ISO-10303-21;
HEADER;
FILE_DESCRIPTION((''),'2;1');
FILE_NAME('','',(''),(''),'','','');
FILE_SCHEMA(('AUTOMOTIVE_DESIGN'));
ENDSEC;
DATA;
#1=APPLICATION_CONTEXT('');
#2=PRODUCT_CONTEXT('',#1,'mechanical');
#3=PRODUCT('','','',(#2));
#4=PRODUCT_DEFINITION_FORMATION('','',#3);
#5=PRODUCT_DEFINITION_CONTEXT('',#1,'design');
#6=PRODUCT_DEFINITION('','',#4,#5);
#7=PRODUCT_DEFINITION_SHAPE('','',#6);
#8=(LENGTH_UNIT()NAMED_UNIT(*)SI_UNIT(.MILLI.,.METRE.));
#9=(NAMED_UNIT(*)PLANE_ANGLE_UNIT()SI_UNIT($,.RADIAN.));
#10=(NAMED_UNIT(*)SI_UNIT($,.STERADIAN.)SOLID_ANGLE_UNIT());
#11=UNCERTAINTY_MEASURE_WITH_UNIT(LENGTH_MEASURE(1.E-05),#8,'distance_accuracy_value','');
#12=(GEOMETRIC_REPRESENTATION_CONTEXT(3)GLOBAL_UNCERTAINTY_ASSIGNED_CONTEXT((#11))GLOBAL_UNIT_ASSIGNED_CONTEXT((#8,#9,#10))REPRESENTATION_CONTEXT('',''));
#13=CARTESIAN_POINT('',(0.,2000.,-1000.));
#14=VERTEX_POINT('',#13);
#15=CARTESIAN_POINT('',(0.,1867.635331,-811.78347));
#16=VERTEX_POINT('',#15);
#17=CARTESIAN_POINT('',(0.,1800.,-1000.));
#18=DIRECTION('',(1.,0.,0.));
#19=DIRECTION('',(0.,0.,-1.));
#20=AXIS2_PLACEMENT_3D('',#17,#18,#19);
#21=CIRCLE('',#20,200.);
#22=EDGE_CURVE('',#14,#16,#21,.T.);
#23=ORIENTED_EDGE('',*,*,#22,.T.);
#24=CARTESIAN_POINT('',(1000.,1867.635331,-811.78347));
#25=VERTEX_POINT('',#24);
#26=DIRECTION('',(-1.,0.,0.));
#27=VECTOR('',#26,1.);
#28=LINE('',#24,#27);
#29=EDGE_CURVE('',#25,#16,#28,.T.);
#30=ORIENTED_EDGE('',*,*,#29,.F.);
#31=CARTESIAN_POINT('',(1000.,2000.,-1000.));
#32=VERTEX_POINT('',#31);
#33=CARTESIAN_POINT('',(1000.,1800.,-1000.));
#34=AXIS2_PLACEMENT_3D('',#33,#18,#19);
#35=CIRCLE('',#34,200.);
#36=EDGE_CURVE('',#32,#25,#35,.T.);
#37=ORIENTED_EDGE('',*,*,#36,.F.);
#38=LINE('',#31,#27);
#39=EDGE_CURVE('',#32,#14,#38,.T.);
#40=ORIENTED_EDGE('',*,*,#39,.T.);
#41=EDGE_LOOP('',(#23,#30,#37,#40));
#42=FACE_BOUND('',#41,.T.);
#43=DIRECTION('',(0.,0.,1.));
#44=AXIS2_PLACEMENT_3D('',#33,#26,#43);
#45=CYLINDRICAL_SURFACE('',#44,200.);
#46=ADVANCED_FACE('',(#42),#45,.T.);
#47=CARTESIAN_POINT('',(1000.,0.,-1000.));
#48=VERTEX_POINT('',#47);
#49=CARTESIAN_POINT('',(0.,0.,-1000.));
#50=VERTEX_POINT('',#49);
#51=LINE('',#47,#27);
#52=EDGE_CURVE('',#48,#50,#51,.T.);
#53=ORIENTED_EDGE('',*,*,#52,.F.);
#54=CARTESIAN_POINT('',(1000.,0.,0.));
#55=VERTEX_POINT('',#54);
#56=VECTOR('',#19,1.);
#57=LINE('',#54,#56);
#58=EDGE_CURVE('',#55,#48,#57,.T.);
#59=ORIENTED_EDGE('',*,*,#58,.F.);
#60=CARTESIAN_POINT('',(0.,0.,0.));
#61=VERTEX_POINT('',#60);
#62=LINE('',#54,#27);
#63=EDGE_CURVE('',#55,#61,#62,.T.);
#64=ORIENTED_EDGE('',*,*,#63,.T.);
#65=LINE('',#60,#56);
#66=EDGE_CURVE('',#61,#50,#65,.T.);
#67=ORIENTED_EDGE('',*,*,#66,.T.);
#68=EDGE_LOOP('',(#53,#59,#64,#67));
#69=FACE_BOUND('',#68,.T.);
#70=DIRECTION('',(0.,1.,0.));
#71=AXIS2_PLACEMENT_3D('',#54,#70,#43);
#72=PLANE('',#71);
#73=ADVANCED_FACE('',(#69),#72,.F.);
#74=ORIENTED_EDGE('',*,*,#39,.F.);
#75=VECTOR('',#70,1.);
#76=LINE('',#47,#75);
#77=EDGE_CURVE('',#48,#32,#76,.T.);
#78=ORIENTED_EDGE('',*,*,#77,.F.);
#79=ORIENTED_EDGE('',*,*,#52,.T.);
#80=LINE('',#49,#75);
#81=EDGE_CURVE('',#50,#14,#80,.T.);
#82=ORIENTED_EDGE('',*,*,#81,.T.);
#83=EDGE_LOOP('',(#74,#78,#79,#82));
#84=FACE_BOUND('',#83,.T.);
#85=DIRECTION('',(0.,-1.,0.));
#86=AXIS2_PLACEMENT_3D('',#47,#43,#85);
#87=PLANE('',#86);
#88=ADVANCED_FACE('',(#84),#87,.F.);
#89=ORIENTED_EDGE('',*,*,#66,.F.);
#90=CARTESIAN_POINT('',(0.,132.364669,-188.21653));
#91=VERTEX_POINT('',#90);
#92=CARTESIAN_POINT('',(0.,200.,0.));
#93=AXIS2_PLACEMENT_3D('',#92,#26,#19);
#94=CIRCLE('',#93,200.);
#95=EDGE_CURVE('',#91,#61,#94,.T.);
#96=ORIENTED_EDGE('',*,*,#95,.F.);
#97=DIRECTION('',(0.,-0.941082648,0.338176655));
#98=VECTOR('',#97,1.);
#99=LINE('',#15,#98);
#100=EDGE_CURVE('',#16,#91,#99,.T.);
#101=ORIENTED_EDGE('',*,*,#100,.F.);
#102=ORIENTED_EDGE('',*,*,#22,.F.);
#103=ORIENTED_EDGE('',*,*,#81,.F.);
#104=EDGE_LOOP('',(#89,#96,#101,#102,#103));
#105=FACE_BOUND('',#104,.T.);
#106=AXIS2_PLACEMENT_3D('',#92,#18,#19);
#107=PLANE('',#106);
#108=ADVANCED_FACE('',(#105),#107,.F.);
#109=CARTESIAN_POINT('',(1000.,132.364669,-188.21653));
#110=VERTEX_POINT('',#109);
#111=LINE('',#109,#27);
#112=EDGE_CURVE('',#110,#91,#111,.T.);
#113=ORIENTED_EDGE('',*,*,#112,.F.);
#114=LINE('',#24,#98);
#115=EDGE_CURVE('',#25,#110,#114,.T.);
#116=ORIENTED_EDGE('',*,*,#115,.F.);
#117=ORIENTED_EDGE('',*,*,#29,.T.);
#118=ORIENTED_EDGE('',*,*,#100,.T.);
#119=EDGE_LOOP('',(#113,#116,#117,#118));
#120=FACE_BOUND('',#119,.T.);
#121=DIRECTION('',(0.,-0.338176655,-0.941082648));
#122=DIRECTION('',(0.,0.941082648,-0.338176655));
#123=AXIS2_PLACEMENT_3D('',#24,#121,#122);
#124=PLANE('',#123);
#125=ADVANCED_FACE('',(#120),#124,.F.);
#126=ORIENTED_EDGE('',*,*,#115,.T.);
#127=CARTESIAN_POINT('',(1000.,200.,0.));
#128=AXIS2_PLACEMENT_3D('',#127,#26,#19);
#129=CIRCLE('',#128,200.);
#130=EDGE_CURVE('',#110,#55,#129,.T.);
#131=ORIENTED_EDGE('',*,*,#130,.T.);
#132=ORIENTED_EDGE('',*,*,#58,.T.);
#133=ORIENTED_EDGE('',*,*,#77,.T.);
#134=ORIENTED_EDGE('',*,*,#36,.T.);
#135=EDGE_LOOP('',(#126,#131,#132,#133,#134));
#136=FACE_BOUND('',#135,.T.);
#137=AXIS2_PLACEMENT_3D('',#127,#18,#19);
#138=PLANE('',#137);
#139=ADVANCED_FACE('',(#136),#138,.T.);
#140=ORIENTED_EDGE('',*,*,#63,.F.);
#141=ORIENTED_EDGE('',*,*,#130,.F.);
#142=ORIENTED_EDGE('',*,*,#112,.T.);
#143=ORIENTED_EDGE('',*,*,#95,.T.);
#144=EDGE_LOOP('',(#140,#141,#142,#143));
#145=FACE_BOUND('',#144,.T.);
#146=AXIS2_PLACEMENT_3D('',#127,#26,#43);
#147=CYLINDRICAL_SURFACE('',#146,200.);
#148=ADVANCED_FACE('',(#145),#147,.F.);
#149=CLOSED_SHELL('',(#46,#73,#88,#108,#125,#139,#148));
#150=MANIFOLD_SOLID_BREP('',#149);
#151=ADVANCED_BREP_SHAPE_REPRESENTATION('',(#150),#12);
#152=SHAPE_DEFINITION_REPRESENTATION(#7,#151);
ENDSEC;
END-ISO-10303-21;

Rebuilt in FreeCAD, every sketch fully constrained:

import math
import FreeCAD as App
import Part
import Sketcher

V = App.Vector

doc = App.newDocument("Part")
params = doc.addObject("Spreadsheet::Sheet", "Params")
for row, (alias, value) in enumerate([
    ("sketch1_radius", "200 mm"),
    ("sketch1_width", "2000 mm"),
    ("sketch1_height", "1000 mm"),
    ("pad1_length", "1000 mm"),
], start=1):
    params.set(f"A{row}", alias)
    params.set(f"B{row}", "=" + value)
    params.setAlias(f"B{row}", alias)

body = doc.addObject("PartDesign::Body", "Body")

# Sketch on YZ plane
sketch1 = body.newObject("Sketcher::SketchObject", "Sketch")
sketch1.AttachmentSupport = (doc.getObject("YZ_Plane"), [""])
sketch1.MapMode = "FlatFace"
sketch1.addGeometry([
    Part.LineSegment(V(0, 0, 0), V(0, -1000, 0)),  # 0
    Part.LineSegment(V(0, -1000, 0), V(2000, -1000, 0)),  # 1
    Part.ArcOfCircle(Part.Circle(V(1800, -1000, 0), V(0, 0, 1), 200), math.radians(0), math.radians(70)),  # 2
    Part.LineSegment(V(1868, -812, 0), V(132, -188, 0)),  # 3
    Part.ArcOfCircle(Part.Circle(V(200, 0, 0), V(0, 0, 1), 200), math.radians(180), math.radians(250)),  # 4
], False)
sketch1.addConstraint([
    Sketcher.Constraint("Coincident", 0, 2, 1, 1),
    Sketcher.Constraint("Coincident", 1, 2, 2, 1),
    Sketcher.Constraint("Tangent", 2, 2, 3, 1),
    Sketcher.Constraint("Tangent", 3, 2, 4, 2),
    Sketcher.Constraint("Tangent", 4, 1, 0, 1),
    Sketcher.Constraint("Vertical", 0),
    Sketcher.Constraint("Horizontal", 1),
    Sketcher.Constraint("Coincident", 4, 1, -1, 1),
    Sketcher.Constraint("Equal", 2, 4),
    Sketcher.Constraint("Horizontal", 2, 3, 0, 2),
    Sketcher.Constraint("Radius", 2, 200.0),
    Sketcher.Constraint("DistanceX", 1, 1, 1, 2, 2000.0),
    Sketcher.Constraint("DistanceY", 0, 2, 0, 1, 1000.0),
])
sketch1.setExpression("Constraints[10]", "Params.sketch1_radius")
sketch1.setExpression("Constraints[11]", "Params.sketch1_width")
sketch1.setExpression("Constraints[12]", "Params.sketch1_height")
pad1 = body.newObject("PartDesign::Pad", "Pad")
pad1.Profile = sketch1
pad1.setExpression("Length", "Params.pad1_length")

doc.recompute()
